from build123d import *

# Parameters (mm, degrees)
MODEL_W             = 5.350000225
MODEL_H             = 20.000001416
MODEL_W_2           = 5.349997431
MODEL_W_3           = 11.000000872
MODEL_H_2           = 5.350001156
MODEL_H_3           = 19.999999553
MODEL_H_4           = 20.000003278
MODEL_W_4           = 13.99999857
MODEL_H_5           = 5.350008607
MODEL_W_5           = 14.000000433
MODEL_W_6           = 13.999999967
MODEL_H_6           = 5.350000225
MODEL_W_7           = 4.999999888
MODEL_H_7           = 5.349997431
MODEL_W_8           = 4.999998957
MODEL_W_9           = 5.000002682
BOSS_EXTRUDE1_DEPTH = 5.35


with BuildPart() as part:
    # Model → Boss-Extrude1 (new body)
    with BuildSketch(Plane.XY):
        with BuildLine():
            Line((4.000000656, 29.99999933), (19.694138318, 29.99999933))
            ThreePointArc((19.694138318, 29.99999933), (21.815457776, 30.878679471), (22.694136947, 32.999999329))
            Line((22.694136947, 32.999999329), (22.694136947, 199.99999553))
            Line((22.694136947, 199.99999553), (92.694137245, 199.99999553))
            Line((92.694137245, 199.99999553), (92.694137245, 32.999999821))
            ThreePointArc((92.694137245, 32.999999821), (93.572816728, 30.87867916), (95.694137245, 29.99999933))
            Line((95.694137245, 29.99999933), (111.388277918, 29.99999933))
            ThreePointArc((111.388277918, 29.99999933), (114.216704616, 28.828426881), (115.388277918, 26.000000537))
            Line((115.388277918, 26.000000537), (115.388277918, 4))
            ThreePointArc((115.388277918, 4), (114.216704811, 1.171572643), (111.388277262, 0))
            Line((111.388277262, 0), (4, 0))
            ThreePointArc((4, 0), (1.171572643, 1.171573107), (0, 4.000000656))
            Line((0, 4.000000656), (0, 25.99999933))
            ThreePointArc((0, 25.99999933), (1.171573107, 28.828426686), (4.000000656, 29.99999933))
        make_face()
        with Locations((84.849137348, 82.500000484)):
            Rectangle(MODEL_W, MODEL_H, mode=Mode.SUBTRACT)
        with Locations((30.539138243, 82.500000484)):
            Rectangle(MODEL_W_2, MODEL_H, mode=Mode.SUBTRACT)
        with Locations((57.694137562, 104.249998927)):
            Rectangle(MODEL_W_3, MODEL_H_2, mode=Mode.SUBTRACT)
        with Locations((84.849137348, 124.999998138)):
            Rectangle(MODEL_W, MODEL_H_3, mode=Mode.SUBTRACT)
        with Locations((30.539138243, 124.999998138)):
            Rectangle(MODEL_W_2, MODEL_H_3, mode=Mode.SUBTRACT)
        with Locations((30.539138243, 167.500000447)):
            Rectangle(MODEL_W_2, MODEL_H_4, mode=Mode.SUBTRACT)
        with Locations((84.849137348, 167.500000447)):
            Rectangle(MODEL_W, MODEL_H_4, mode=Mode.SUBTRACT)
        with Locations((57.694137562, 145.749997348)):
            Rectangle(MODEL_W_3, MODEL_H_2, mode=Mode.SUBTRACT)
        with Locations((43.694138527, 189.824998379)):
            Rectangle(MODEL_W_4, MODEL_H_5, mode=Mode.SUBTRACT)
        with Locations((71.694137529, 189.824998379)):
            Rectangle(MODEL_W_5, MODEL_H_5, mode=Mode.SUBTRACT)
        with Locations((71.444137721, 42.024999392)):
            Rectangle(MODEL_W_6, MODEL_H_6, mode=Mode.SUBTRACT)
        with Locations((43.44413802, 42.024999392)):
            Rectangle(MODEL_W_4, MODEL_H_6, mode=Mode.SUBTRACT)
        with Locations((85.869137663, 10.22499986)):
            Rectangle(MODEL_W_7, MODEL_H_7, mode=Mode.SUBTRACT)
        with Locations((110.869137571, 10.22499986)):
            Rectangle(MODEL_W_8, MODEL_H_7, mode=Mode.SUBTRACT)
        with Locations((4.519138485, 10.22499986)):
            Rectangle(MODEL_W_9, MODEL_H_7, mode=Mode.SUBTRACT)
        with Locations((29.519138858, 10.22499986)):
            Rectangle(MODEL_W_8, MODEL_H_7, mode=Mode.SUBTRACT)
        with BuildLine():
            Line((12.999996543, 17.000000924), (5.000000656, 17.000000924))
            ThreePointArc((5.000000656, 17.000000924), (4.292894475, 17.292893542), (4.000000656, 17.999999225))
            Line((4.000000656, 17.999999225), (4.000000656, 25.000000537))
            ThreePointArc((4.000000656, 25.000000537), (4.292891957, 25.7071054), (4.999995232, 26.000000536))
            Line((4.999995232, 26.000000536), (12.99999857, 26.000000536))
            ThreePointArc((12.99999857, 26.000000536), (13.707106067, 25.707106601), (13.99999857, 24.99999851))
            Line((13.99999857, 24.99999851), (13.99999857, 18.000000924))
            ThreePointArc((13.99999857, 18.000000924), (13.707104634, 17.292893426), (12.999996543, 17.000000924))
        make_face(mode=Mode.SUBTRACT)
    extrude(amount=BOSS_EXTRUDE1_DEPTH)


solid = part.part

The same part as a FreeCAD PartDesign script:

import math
import FreeCAD as App
import Part
import Sketcher

V = App.Vector
Q = App.Units.Quantity

doc = App.newDocument("Part")
body = doc.addObject("PartDesign::Body", "Body")

# Sketch on XY plane
sketch1 = body.newObject("Sketcher::SketchObject", "Sketch")
sketch1.AttachmentSupport = (doc.getObject("XY_Plane"), [""])
sketch1.MapMode = "FlatFace"
sketch1.addGeometry([
    Part.LineSegment(V(19.7, 30, 0), V(4, 30, 0)),  # 0
    Part.ArcOfCircle(Part.Circle(V(4, 26, 0), V(0, 0, 1), 4), math.radians(90), math.radians(180)),  # 1
    Part.LineSegment(V(0, 26, 0), V(0, 4, 0)),  # 2
    Part.ArcOfCircle(Part.Circle(V(4, 4, 0), V(0, 0, 1), 4), math.radians(180), math.radians(270)),  # 3
    Part.LineSegment(V(4, 0, 0), V(111.4, 0, 0)),  # 4
    Part.ArcOfCircle(Part.Circle(V(111.4, 4, 0), V(0, 0, 1), 4), math.radians(-90), math.radians(0)),  # 5
    Part.LineSegment(V(115.4, 4, 0), V(115.4, 26, 0)),  # 6
    Part.ArcOfCircle(Part.Circle(V(111.4, 26, 0), V(0, 0, 1), 4), math.radians(0), math.radians(90)),  # 7
    Part.LineSegment(V(111.4, 30, 0), V(95.7, 30, 0)),  # 8
    Part.ArcOfCircle(Part.Circle(V(95.7, 33, 0), V(0, 0, 1), 3), math.radians(180), math.radians(270)),  # 9
    Part.LineSegment(V(92.7, 33, 0), V(92.7, 200, 0)),  # 10
    Part.LineSegment(V(92.7, 200, 0), V(22.7, 200, 0)),  # 11
    Part.LineSegment(V(22.7, 200, 0), V(22.7, 33, 0)),  # 12
    Part.ArcOfCircle(Part.Circle(V(19.7, 33, 0), V(0, 0, 1), 3), math.radians(-90), math.radians(0)),  # 13
    Part.LineSegment(V(108.4, 7.6, 0), V(108.4, 12.9, 0)),  # 14
    Part.LineSegment(V(108.4, 12.9, 0), V(113.4, 12.9, 0)),  # 15
    Part.LineSegment(V(113.4, 12.9, 0), V(113.4, 7.6, 0)),  # 16
    Part.LineSegment(V(113.4, 7.6, 0), V(108.4, 7.6, 0)),  # 17
    Part.LineSegment(V(83.4, 7.6, 0), V(83.4, 12.9, 0)),  # 18
    Part.LineSegment(V(83.4, 12.9, 0), V(88.4, 12.9, 0)),  # 19
    Part.LineSegment(V(88.4, 12.9, 0), V(88.4, 7.6, 0)),  # 20
    Part.LineSegment(V(88.4, 7.6, 0), V(83.4, 7.6, 0)),  # 21
    Part.LineSegment(V(64.4, 39.3, 0), V(64.4, 44.7, 0)),  # 22
    Part.LineSegment(V(64.4, 44.7, 0), V(78.4, 44.7, 0)),  # 23
    Part.LineSegment(V(78.4, 44.7, 0), V(78.4, 39.3, 0)),  # 24
    Part.LineSegment(V(78.4, 39.3, 0), V(64.4, 39.3, 0)),  # 25
    Part.LineSegment(V(82.2, 72.5, 0), V(82.2, 92.5, 0)),  # 26
    Part.LineSegment(V(82.2, 92.5, 0), V(87.5, 92.5, 0)),  # 27
    Part.LineSegment(V(87.5, 92.5, 0), V(87.5, 72.5, 0)),  # 28
    Part.LineSegment(V(87.5, 72.5, 0), V(82.2, 72.5, 0)),  # 29
    Part.LineSegment(V(36.4, 39.3, 0), V(36.4, 44.7, 0)),  # 30
    Part.LineSegment(V(36.4, 44.7, 0), V(50.4, 44.7, 0)),  # 31
    Part.LineSegment(V(50.4, 44.7, 0), V(50.4, 39.3, 0)),  # 32
    Part.LineSegment(V(50.4, 39.3, 0), V(36.4, 39.3, 0)),  # 33
    Part.LineSegment(V(27, 7.6, 0), V(27, 12.9, 0)),  # 34
    Part.LineSegment(V(27, 12.9, 0), V(32, 12.9, 0)),  # 35
    Part.LineSegment(V(32, 12.9, 0), V(32, 7.6, 0)),  # 36
    Part.LineSegment(V(32, 7.6, 0), V(27, 7.6, 0)),  # 37
    Part.LineSegment(V(2, 7.6, 0), V(2, 12.9, 0)),  # 38
    Part.LineSegment(V(2, 12.9, 0), V(7, 12.9, 0)),  # 39
    Part.LineSegment(V(7, 12.9, 0), V(7, 7.6, 0)),  # 40
    Part.LineSegment(V(7, 7.6, 0), V(2, 7.6, 0)),  # 41
    Part.LineSegment(V(13, 17, 0), V(5, 17, 0)),  # 42
    Part.ArcOfCircle(Part.Circle(V(5, 18, 0), V(0, 0, 1), 1), math.radians(-180), math.radians(-90)),  # 43
    Part.LineSegment(V(4, 18, 0), V(4, 25, 0)),  # 44
    Part.ArcOfCircle(Part.Circle(V(5, 25, 0), V(0, 0, 1), 1), math.radians(90), math.radians(180)),  # 45
    Part.LineSegment(V(5, 26, 0), V(13, 26, 0)),  # 46
    Part.ArcOfCircle(Part.Circle(V(13, 25, 0), V(0, 0, 1), 1), math.radians(0), math.radians(90)),  # 47
    Part.LineSegment(V(14, 25, 0), V(14, 18, 0)),  # 48
    Part.ArcOfCircle(Part.Circle(V(13, 18, 0), V(0, 0, 1), 1), math.radians(-90), math.radians(0)),  # 49
    Part.LineSegment(V(27.9, 72.5, 0), V(27.9, 92.5, 0)),  # 50
    Part.LineSegment(V(27.9, 92.5, 0), V(33.2, 92.5, 0)),  # 51
    Part.LineSegment(V(33.2, 92.5, 0), V(33.2, 72.5, 0)),  # 52
    Part.LineSegment(V(33.2, 72.5, 0), V(27.9, 72.5, 0)),  # 53
    Part.LineSegment(V(52.2, 101.6, 0), V(52.2, 106.9, 0)),  # 54
    Part.LineSegment(V(52.2, 106.9, 0), V(63.2, 106.9, 0)),  # 55
    Part.LineSegment(V(63.2, 106.9, 0), V(63.2, 101.6, 0)),  # 56
    Part.LineSegment(V(63.2, 101.6, 0), V(52.2, 101.6, 0)),  # 57
    Part.LineSegment(V(82.2, 115, 0), V(82.2, 135, 0)),  # 58
    Part.LineSegment(V(82.2, 135, 0), V(87.5, 135, 0)),  # 59
    Part.LineSegment(V(87.5, 135, 0), V(87.5, 115, 0)),  # 60
    Part.LineSegment(V(87.5, 115, 0), V(82.2, 115, 0)),  # 61
    Part.LineSegment(V(52.2, 143.1, 0), V(52.2, 148.4, 0)),  # 62
    Part.LineSegment(V(52.2, 148.4, 0), V(63.2, 148.4, 0)),  # 63
    Part.LineSegment(V(63.2, 148.4, 0), V(63.2, 143.1, 0)),  # 64
    Part.LineSegment(V(63.2, 143.1, 0), V(52.2, 143.1, 0)),  # 65
    Part.LineSegment(V(82.2, 157.5, 0), V(82.2, 177.5, 0)),  # 66
    Part.LineSegment(V(82.2, 177.5, 0), V(87.5, 177.5, 0)),  # 67
    Part.LineSegment(V(87.5, 177.5, 0), V(87.5, 157.5, 0)),  # 68
    Part.LineSegment(V(87.5, 157.5, 0), V(82.2, 157.5, 0)),  # 69
    Part.LineSegment(V(64.7, 187.1, 0), V(64.7, 192.5, 0)),  # 70
    Part.LineSegment(V(64.7, 192.5, 0), V(78.7, 192.5, 0)),  # 71
    Part.LineSegment(V(78.7, 192.5, 0), V(78.7, 187.1, 0)),  # 72
    Part.LineSegment(V(78.7, 187.1, 0), V(64.7, 187.1, 0)),  # 73
    Part.LineSegment(V(27.9, 115, 0), V(27.9, 135, 0)),  # 74
    Part.LineSegment(V(27.9, 135, 0), V(33.2, 135, 0)),  # 75
    Part.LineSegment(V(33.2, 135, 0), V(33.2, 115, 0)),  # 76
    Part.LineSegment(V(33.2, 115, 0), V(27.9, 115, 0)),  # 77
    Part.LineSegment(V(27.9, 157.5, 0), V(27.9, 177.5, 0)),  # 78
    Part.LineSegment(V(27.9, 177.5, 0), V(33.2, 177.5, 0)),  # 79
    Part.LineSegment(V(33.2, 177.5, 0), V(33.2, 157.5, 0)),  # 80
    Part.LineSegment(V(33.2, 157.5, 0), V(27.9, 157.5, 0)),  # 81
    Part.LineSegment(V(36.7, 187.1, 0), V(36.7, 192.5, 0)),  # 82
    Part.LineSegment(V(36.7, 192.5, 0), V(50.7, 192.5, 0)),  # 83
    Part.LineSegment(V(50.7, 192.5, 0), V(50.7, 187.1, 0)),  # 84
    Part.LineSegment(V(50.7, 187.1, 0), V(36.7, 187.1, 0)),  # 85
], False)
sketch1.addConstraint([
    Sketcher.Constraint("Tangent", 0, 2, 1, 1),
    Sketcher.Constraint("Tangent", 1, 2, 2, 1),
    Sketcher.Constraint("Tangent", 2, 2, 3, 1),
    Sketcher.Constraint("Tangent", 3, 2, 4, 1),
    Sketcher.Constraint("Tangent", 4, 2, 5, 1),
    Sketcher.Constraint("Tangent", 5, 2, 6, 1),
    Sketcher.Constraint("Tangent", 6, 2, 7, 1),
    Sketcher.Constraint("Tangent", 7, 2, 8, 1),
    Sketcher.Constraint("Tangent", 8, 2, 9, 2),
    Sketcher.Constraint("Tangent", 9, 1, 10, 1),
    Sketcher.Constraint("Coincident", 10, 2, 11, 1),
    Sketcher.Constraint("Coincident", 11, 2, 12, 1),
    Sketcher.Constraint("Tangent", 12, 2, 13, 2),
    Sketcher.Constraint("Tangent", 13, 1, 0, 1),
    Sketcher.Constraint("Coincident", 14, 2, 15, 1),
    Sketcher.Constraint("Coincident", 15, 2, 16, 1),
    Sketcher.Constraint("Coincident", 16, 2, 17, 1),
    Sketcher.Constraint("Coincident", 17, 2, 14, 1),
    Sketcher.Constraint("Coincident", 18, 2, 19, 1),
    Sketcher.Constraint("Coincident", 19, 2, 20, 1),
    Sketcher.Constraint("Coincident", 20, 2, 21, 1),
    Sketcher.Constraint("Coincident", 21, 2, 18, 1),
    Sketcher.Constraint("Coincident", 22, 2, 23, 1),
    Sketcher.Constraint("Coincident", 23, 2, 24, 1),
    Sketcher.Constraint("Coincident", 24, 2, 25, 1),
    Sketcher.Constraint("Coincident", 25, 2, 22, 1),
    Sketcher.Constraint("Coincident", 26, 2, 27, 1),
    Sketcher.Constraint("Coincident", 27, 2, 28, 1),
    Sketcher.Constraint("Coincident", 28, 2, 29, 1),
    Sketcher.Constraint("Coincident", 29, 2, 26, 1),
    Sketcher.Constraint("Coincident", 30, 2, 31, 1),
    Sketcher.Constraint("Coincident", 31, 2, 32, 1),
    Sketcher.Constraint("Coincident", 32, 2, 33, 1),
    Sketcher.Constraint("Coincident", 33, 2, 30, 1),
    Sketcher.Constraint("Coincident", 34, 2, 35, 1),
    Sketcher.Constraint("Coincident", 35, 2, 36, 1),
    Sketcher.Constraint("Coincident", 36, 2, 37, 1),
    Sketcher.Constraint("Coincident", 37, 2, 34, 1),
    Sketcher.Constraint("Coincident", 38, 2, 39, 1),
    Sketcher.Constraint("Coincident", 39, 2, 40, 1),
    Sketcher.Constraint("Coincident", 40, 2, 41, 1),
    Sketcher.Constraint("Coincident", 41, 2, 38, 1),
    Sketcher.Constraint("Tangent", 42, 2, 43, 2),
    Sketcher.Constraint("Tangent", 43, 1, 44, 1),
    Sketcher.Constraint("Tangent", 44, 2, 45, 2),
    Sketcher.Constraint("Coincident", 45, 1, 46, 1),
    Sketcher.Constraint("Tangent", 46, 2, 47, 2),
    Sketcher.Constraint("Coincident", 47, 1, 48, 1),
    Sketcher.Constraint("Tangent", 48, 2, 49, 2),
    Sketcher.Constraint("Coincident", 49, 1, 42, 1),
    Sketcher.Constraint("Coincident", 50, 2, 51, 1),
    Sketcher.Constraint("Coincident", 51, 2, 52, 1),
    Sketcher.Constraint("Coincident", 52, 2, 53, 1),
    Sketcher.Constraint("Coincident", 53, 2, 50, 1),
    Sketcher.Constraint("Coincident", 54, 2, 55, 1),
    Sketcher.Constraint("Coincident", 55, 2, 56, 1),
    Sketcher.Constraint("Coincident", 56, 2, 57, 1),
    Sketcher.Constraint("Coincident", 57, 2, 54, 1),
    Sketcher.Constraint("Coincident", 58, 2, 59, 1),
    Sketcher.Constraint("Coincident", 59, 2, 60, 1),
    Sketcher.Constraint("Coincident", 60, 2, 61, 1),
    Sketcher.Constraint("Coincident", 61, 2, 58, 1),
    Sketcher.Constraint("Coincident", 62, 2, 63, 1),
    Sketcher.Constraint("Coincident", 63, 2, 64, 1),
    Sketcher.Constraint("Coincident", 64, 2, 65, 1),
    Sketcher.Constraint("Coincident", 65, 2, 62, 1),
    Sketcher.Constraint("Coincident", 66, 2, 67, 1),
    Sketcher.Constraint("Coincident", 67, 2, 68, 1),
    Sketcher.Constraint("Coincident", 68, 2, 69, 1),
    Sketcher.Constraint("Coincident", 69, 2, 66, 1),
    Sketcher.Constraint("Coincident", 70, 2, 71, 1),
    Sketcher.Constraint("Coincident", 71, 2, 72, 1),
    Sketcher.Constraint("Coincident", 72, 2, 73, 1),
    Sketcher.Constraint("Coincident", 73, 2, 70, 1),
    Sketcher.Constraint("Coincident", 74, 2, 75, 1),
    Sketcher.Constraint("Coincident", 75, 2, 76, 1),
    Sketcher.Constraint("Coincident", 76, 2, 77, 1),
    Sketcher.Constraint("Coincident", 77, 2, 74, 1),
    Sketcher.Constraint("Coincident", 78, 2, 79, 1),
    Sketcher.Constraint("Coincident", 79, 2, 80, 1),
    Sketcher.Constraint("Coincident", 80, 2, 81, 1),
    Sketcher.Constraint("Coincident", 81, 2, 78, 1),
    Sketcher.Constraint("Coincident", 82, 2, 83, 1),
    Sketcher.Constraint("Coincident", 83, 2, 84, 1),
    Sketcher.Constraint("Coincident", 84, 2, 85, 1),
    Sketcher.Constraint("Coincident", 85, 2, 82, 1),
    Sketcher.Constraint("Horizontal", 0),
    Sketcher.Constraint("Vertical", 2),
    Sketcher.Constraint("Horizontal", 4),
    Sketcher.Constraint("Vertical", 6),
    Sketcher.Constraint("Horizontal", 8),
    Sketcher.Constraint("Vertical", 10),
    Sketcher.Constraint("Horizontal", 11),
    Sketcher.Constraint("Vertical", 12),
    Sketcher.Constraint("Vertical", 14),
    Sketcher.Constraint("Horizontal", 15),
    Sketcher.Constraint("Vertical", 16),
    Sketcher.Constraint("Horizontal", 17),
    Sketcher.Constraint("Vertical", 18),
    Sketcher.Constraint("Horizontal", 19),
    Sketcher.Constraint("Vertical", 20),
    Sketcher.Constraint("Horizontal", 21),
    Sketcher.Constraint("Vertical", 22),
    Sketcher.Constraint("Horizontal", 23),
    Sketcher.Constraint("Vertical", 24),
    Sketcher.Constraint("Horizontal", 25),
    Sketcher.Constraint("Vertical", 26),
    Sketcher.Constraint("Horizontal", 27),
    Sketcher.Constraint("Vertical", 28),
    Sketcher.Constraint("Horizontal", 29),
    Sketcher.Constraint("Vertical", 30),
    Sketcher.Constraint("Horizontal", 31),
    Sketcher.Constraint("Vertical", 32),
    Sketcher.Constraint("Horizontal", 33),
    Sketcher.Constraint("Vertical", 34),
    Sketcher.Constraint("Horizontal", 35),
    Sketcher.Constraint("Vertical", 36),
    Sketcher.Constraint("Horizontal", 37),
    Sketcher.Constraint("Vertical", 38),
    Sketcher.Constraint("Horizontal", 39),
    Sketcher.Constraint("Vertical", 40),
    Sketcher.Constraint("Horizontal", 41),
    Sketcher.Constraint("Horizontal", 42),
    Sketcher.Constraint("Vertical", 44),
    Sketcher.Constraint("Horizontal", 46),
    Sketcher.Constraint("Vertical", 48),
    Sketcher.Constraint("Vertical", 50),
    Sketcher.Constraint("Horizontal", 51),
    Sketcher.Constraint("Vertical", 52),
    Sketcher.Constraint("Horizontal", 53),
    Sketcher.Constraint("Vertical", 54),
    Sketcher.Constraint("Horizontal", 55),
    Sketcher.Constraint("Vertical", 56),
    Sketcher.Constraint("Horizontal", 57),
    Sketcher.Constraint("Vertical", 58),
    Sketcher.Constraint("Horizontal", 59),
    Sketcher.Constraint("Vertical", 60),
    Sketcher.Constraint("Horizontal", 61),
    Sketcher.Constraint("Vertical", 62),
    Sketcher.Constraint("Horizontal", 63),
    Sketcher.Constraint("Vertical", 64),
    Sketcher.Constraint("Horizontal", 65),
    Sketcher.Constraint("Vertical", 66),
    Sketcher.Constraint("Horizontal", 67),
    Sketcher.Constraint("Vertical", 68),
    Sketcher.Constraint("Horizontal", 69),
    Sketcher.Constraint("Vertical", 70),
    Sketcher.Constraint("Horizontal", 71),
    Sketcher.Constraint("Vertical", 72),
    Sketcher.Constraint("Horizontal", 73),
    Sketcher.Constraint("Vertical", 74),
    Sketcher.Constraint("Horizontal", 75),
    Sketcher.Constraint("Vertical", 76),
    Sketcher.Constraint("Horizontal", 77),
    Sketcher.Constraint("Vertical", 78),
    Sketcher.Constraint("Horizontal", 79),
    Sketcher.Constraint("Vertical", 80),
    Sketcher.Constraint("Horizontal", 81),
    Sketcher.Constraint("Vertical", 82),
    Sketcher.Constraint("Horizontal", 83),
    Sketcher.Constraint("Vertical", 84),
    Sketcher.Constraint("Horizontal", 85),
    Sketcher.Constraint("Equal", 1, 3),
    Sketcher.Constraint("Equal", 3, 5),
    Sketcher.Constraint("Equal", 5, 7),
    Sketcher.Constraint("Equal", 9, 13),
    Sketcher.Constraint("Equal", 43, 45),
    Sketcher.Constraint("Equal", 45, 47),
    Sketcher.Constraint("Equal", 47, 49),
    Sketcher.Constraint("PointOnObject", 1, 2, -2),
    Sketcher.Constraint("PointOnObject", 3, 2, -1),
    Sketcher.Constraint("Horizontal", 1, 3, 7, 3),
    Sketcher.Constraint("Horizontal", 15, 2, 18, 2),
    Sketcher.Constraint("Horizontal", 17, 2, 20, 2),
    Sketcher.Constraint("Horizontal", 23, 2, 30, 2),
    Sketcher.Constraint("Horizontal", 25, 2, 32, 2),
    Sketcher.Constraint("Horizontal", 19, 2, 34, 2),
    Sketcher.Constraint("Horizontal", 21, 2, 36, 2),
    Sketcher.Constraint("Horizontal", 35, 2, 38, 2),
    Sketcher.Constraint("Horizontal", 37, 2, 40, 2),
    Sketcher.Constraint("Horizontal", 6, 2, 45, 1),
    Sketcher.Constraint("Horizontal", 27, 2, 50, 2),
    Sketcher.Constraint("Horizontal", 29, 2, 52, 2),
    Sketcher.Constraint("Horizontal", 59, 2, 74, 2),
    Sketcher.Constraint("Horizontal", 61, 2, 76, 2),
    Sketcher.Constraint("Horizontal", 67, 2, 78, 2),
    Sketcher.Constraint("Horizontal", 69, 2, 80, 2),
    Sketcher.Constraint("Horizontal", 71, 2, 82, 2),
    Sketcher.Constraint("Horizontal", 73, 2, 84, 2),
    Sketcher.Constraint("Vertical", 3, 2, 43, 1),
    Sketcher.Constraint("Vertical", 29, 2, 58, 2),
    Sketcher.Constraint("Vertical", 28, 2, 59, 2),
    Sketcher.Constraint("Vertical", 57, 2, 62, 2),
    Sketcher.Constraint("Vertical", 56, 2, 63, 2),
    Sketcher.Constraint("Vertical", 61, 2, 66, 2),
    Sketcher.Constraint("Vertical", 60, 2, 67, 2),
    Sketcher.Constraint("Vertical", 53, 2, 74, 2),
    Sketcher.Constraint("Vertical", 52, 2, 75, 2),
    Sketcher.Constraint("Vertical", 77, 2, 78, 2),
    Sketcher.Constraint("Vertical", 76, 2, 79, 2),
    Sketcher.Constraint("Equal", 17, 19),
    Sketcher.Constraint("Equal", 25, 31),
    Sketcher.Constraint("Equal", 21, 35),
    Sketcher.Constraint("Equal", 33, 71),
    Sketcher.Constraint("Equal", 73, 83),
    Sketcher.Constraint("Equal", 81, 14),
    Sketcher.Constraint("Equal", 69, 22),
    Sketcher.Constraint("Equal", 32, 54),
    Sketcher.Constraint("Equal", 52, 58),
    Sketcher.Constraint("Equal", 56, 62),
    Sketcher.Constraint("Equal", 52, 66),
    Sketcher.Constraint("Radius", 1, Q("4 mm")),
    Sketcher.Constraint("Radius", 9, Q("3 mm")),
    Sketcher.Constraint("Radius", 43, Q("1 mm")),
    Sketcher.Constraint("DistanceX", 11, 2, 11, 1, Q("70 mm")),
    Sketcher.Constraint("DistanceX", 15, 1, 15, 2, Q("4.999999 mm")),
    Sketcher.Constraint("DistanceX", 23, 1, 23, 2, Q("14 mm")),
    Sketcher.Constraint("DistanceX", 55, 1, 55, 2, Q("11.000001 mm")),
    Sketcher.Constraint("DistanceY", 2, 2, 2, 1, Q("21.999999 mm")),
    Sketcher.Constraint("DistanceY", 26, 1, 26, 2, Q("20.000001 mm")),
    Sketcher.Constraint("DistanceY", 44, 1, 44, 2, Q("7.000001 mm")),
    Sketcher.Constraint("DistanceX", -1, 1, 47, 3, Q("12.999999 mm")),
    Sketcher.Constraint("DistanceY", -1, 1, 47, 1, Q("24.999999 mm")),
    Sketcher.Constraint("DistanceY", -1, 1, 60, 2, Q("114.999998 mm")),
    Sketcher.Constraint("DistanceX", 27, 1, 27, 2, Q("5.35 mm")),
    Sketcher.Constraint("DistanceY", -1, 1, 14, 2, Q("12.899999 mm")),
    Sketcher.Constraint("DistanceY", -1, 1, 22, 2, Q("44.7 mm")),
    Sketcher.Constraint("DistanceY", -1, 1, 26, 2, Q("92.500001 mm")),
    Sketcher.Constraint("DistanceY", -1, 1, 68, 2, Q("157.499999 mm")),
    Sketcher.Constraint("DistanceY", -1, 1, 16, 2, Q("7.550001 mm")),
    Sketcher.Constraint("DistanceY", -1, 1, 54, 2, Q("106.925 mm")),
    Sketcher.Constraint("DistanceX", 8, 2, 8, 1, Q("15.694141 mm")),
    Sketcher.Constraint("DistanceY", 70, 1, 70, 2, Q("5.350009 mm")),
    Sketcher.Constraint("DistanceX", 0, 2, 0, 1, Q("15.694138 mm")),
    Sketcher.Constraint("DistanceX", 39, 1, 39, 2, Q("5.000003 mm")),
    Sketcher.Constraint("DistanceX", 42, 2, 42, 1, Q("7.999996 mm")),
    Sketcher.Constraint("DistanceX", 46, 1, 46, 2, Q("8.000003 mm")),
    Sketcher.Constraint("DistanceY", 10, 1, 10, 2, Q("166.999996 mm")),
    Sketcher.Constraint("DistanceX", -1, 1, 14, 2, Q("108.369138 mm")),
    Sketcher.Constraint("DistanceX", -1, 1, 30, 2, Q("36.444139 mm")),
    Sketcher.Constraint("DistanceX", -1, 1, 34, 2, Q("27.019139 mm")),
    Sketcher.Constraint("DistanceX", -1, 1, 39, 2, Q("7.01914 mm")),
    Sketcher.Constraint("DistanceX", -1, 1, 50, 2, Q("27.86414 mm")),
    Sketcher.Constraint("DistanceX", -1, 1, 82, 2, Q("36.694139 mm")),
    Sketcher.Constraint("DistanceX", -1, 1, 18, 2, Q("83.369138 mm")),
    Sketcher.Constraint("DistanceX", -1, 1, 22, 2, Q("64.444138 mm")),
    Sketcher.Constraint("DistanceX", -1, 1, 26, 2, Q("82.174137 mm")),
    Sketcher.Constraint("DistanceX", -1, 1, 54, 2, Q("52.194137 mm")),
    Sketcher.Constraint("DistanceY", -1, 1, 62, 2, Q("148.424998 mm")),
    Sketcher.Constraint("DistanceX", -1, 1, 70, 2, Q("64.694137 mm")),
    Sketcher.Constraint("DistanceY", -1, 1, 70, 2, Q("192.500003 mm")),
])
pad1 = body.newObject("PartDesign::Pad", "Pad")
pad1.Profile = sketch1
pad1.Length = 5.35

doc.recompute()
